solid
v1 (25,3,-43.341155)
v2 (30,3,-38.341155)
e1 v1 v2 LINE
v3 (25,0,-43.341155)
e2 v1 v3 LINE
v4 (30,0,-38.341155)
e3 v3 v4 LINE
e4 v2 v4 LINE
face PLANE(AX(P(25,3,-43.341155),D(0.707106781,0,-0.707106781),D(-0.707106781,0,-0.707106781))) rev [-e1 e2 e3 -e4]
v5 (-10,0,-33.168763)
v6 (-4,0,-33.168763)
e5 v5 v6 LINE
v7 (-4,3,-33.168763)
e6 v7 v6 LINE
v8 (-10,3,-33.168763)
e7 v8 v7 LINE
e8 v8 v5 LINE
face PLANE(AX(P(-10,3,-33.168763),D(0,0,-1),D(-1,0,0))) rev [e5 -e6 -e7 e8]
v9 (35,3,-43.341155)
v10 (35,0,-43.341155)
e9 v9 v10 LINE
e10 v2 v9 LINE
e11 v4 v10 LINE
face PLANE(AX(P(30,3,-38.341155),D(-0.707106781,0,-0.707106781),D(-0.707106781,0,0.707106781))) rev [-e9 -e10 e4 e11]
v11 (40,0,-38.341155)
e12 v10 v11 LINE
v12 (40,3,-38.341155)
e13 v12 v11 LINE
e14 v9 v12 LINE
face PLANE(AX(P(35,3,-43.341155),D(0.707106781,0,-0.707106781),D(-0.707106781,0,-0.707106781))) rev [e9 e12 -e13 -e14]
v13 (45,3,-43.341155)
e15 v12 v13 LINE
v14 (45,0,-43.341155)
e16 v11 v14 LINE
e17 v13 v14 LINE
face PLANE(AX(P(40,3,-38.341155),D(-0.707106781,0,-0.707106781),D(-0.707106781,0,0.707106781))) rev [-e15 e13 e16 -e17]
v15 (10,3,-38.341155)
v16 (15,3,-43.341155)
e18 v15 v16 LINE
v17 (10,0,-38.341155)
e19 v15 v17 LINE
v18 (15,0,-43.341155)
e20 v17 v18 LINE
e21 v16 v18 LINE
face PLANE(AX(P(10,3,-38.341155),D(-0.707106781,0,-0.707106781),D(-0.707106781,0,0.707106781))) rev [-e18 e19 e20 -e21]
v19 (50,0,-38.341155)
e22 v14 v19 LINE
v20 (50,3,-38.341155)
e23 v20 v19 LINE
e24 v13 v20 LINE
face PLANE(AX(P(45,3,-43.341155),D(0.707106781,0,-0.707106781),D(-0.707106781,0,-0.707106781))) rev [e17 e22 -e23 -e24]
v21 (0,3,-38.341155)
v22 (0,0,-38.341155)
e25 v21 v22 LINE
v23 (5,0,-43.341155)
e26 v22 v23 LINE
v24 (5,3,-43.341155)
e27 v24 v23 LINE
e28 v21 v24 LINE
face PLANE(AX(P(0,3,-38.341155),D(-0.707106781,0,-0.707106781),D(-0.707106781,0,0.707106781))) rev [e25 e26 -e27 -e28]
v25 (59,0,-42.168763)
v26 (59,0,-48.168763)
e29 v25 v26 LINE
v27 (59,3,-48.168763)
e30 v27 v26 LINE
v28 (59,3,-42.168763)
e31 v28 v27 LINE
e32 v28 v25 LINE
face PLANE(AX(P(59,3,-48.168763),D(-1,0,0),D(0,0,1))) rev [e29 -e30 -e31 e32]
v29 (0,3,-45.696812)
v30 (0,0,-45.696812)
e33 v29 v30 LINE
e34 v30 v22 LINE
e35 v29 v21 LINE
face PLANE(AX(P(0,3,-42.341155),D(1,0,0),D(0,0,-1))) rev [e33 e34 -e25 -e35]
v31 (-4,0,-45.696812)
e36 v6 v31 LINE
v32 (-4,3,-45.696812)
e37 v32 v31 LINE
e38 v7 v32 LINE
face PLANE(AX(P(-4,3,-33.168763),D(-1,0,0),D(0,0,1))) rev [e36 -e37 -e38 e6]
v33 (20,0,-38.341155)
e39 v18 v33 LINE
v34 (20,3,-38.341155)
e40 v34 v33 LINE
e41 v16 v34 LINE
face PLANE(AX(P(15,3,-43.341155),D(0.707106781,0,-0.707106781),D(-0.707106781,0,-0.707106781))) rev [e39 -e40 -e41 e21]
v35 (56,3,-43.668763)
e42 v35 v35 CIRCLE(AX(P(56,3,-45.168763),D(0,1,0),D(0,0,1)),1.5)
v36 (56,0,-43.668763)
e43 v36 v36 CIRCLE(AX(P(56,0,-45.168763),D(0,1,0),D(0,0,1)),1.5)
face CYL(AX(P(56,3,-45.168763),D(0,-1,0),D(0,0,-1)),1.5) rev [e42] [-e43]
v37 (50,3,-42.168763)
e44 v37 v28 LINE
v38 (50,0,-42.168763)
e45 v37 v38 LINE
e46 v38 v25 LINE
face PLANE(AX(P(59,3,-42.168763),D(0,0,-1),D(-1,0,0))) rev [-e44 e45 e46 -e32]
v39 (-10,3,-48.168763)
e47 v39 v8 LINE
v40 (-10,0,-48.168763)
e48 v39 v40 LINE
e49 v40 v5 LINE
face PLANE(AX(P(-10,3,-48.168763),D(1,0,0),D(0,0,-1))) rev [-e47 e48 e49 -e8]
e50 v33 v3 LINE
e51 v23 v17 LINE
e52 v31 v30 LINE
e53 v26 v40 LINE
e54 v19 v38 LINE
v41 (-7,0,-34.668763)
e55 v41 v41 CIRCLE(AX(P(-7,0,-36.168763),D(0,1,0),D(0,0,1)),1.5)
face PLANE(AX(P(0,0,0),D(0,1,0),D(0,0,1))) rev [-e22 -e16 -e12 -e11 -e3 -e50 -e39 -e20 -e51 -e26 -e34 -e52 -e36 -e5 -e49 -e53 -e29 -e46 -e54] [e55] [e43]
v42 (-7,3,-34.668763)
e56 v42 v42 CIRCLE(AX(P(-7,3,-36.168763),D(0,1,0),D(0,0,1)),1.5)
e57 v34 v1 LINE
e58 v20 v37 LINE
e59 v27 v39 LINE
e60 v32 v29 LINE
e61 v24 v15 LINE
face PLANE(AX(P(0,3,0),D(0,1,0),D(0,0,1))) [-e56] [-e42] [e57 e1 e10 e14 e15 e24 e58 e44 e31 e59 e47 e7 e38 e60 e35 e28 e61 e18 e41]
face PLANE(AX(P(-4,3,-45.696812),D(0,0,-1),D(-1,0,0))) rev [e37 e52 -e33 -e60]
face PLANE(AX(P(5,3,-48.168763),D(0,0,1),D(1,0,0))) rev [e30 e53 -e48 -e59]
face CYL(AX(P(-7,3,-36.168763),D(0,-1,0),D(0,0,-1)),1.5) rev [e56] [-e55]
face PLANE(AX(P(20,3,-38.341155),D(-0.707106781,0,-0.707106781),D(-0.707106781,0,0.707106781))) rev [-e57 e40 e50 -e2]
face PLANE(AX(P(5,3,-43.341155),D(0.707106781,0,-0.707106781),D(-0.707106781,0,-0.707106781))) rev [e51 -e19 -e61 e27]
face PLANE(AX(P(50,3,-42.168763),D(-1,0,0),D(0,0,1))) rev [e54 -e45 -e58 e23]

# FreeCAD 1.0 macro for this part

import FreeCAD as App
import Part
import Sketcher
from FreeCAD import Vector

doc = App.newDocument("Part")
body = doc.addObject("PartDesign::Body", "Body")

# Sketch on XZ plane
sketch1 = body.newObject("Sketcher::SketchObject", "Sketch")
sketch1.AttachmentSupport = (doc.getObject("XZ_Plane"), [""])
sketch1.MapMode = "FlatFace"
sketch1.addGeometry([
    Part.LineSegment(Vector(0, -38.3, 0), Vector(5, -43.3, 0)),  # 0
    Part.LineSegment(Vector(5, -43.3, 0), Vector(10, -38.3, 0)),  # 1
    Part.LineSegment(Vector(10, -38.3, 0), Vector(15, -43.3, 0)),  # 2
    Part.LineSegment(Vector(15, -43.3, 0), Vector(20, -38.3, 0)),  # 3
    Part.LineSegment(Vector(20, -38.3, 0), Vector(25, -43.3, 0)),  # 4
    Part.LineSegment(Vector(25, -43.3, 0), Vector(30, -38.3, 0)),  # 5
    Part.LineSegment(Vector(30, -38.3, 0), Vector(35, -43.3, 0)),  # 6
    Part.LineSegment(Vector(35, -43.3, 0), Vector(40, -38.3, 0)),  # 7
    Part.LineSegment(Vector(40, -38.3, 0), Vector(45, -43.3, 0)),  # 8
    Part.LineSegment(Vector(45, -43.3, 0), Vector(50, -38.3, 0)),  # 9
    Part.LineSegment(Vector(50, -38.3, 0), Vector(50, -42.2, 0)),  # 10
    Part.LineSegment(Vector(50, -42.2, 0), Vector(59, -42.2, 0)),  # 11
    Part.LineSegment(Vector(59, -42.2, 0), Vector(59, -48.2, 0)),  # 12
    Part.LineSegment(Vector(59, -48.2, 0), Vector(-10, -48.2, 0)),  # 13
    Part.LineSegment(Vector(-10, -48.2, 0), Vector(-10, -33.2, 0)),  # 14
    Part.LineSegment(Vector(-10, -33.2, 0), Vector(-4, -33.2, 0)),  # 15
    Part.LineSegment(Vector(-4, -33.2, 0), Vector(-4, -45.7, 0)),  # 16
    Part.LineSegment(Vector(-4, -45.7, 0), Vector(0, -45.7, 0)),  # 17
    Part.LineSegment(Vector(0, -45.7, 0), Vector(0, -38.3, 0)),  # 18
    Part.Circle(Vector(-7, -36.2, 0), Vector(0, 0, 1), 1.5),  # 19
    Part.Circle(Vector(56, -45.2, 0), Vector(0, 0, 1), 1.5),  # 20
], False)
sketch1.addConstraint([
    Sketcher.Constraint("Coincident", 0, 2, 1, 1),
    Sketcher.Constraint("Coincident", 1, 2, 2, 1),
    Sketcher.Constraint("Coincident", 2, 2, 3, 1),
    Sketcher.Constraint("Coincident", 3, 2, 4, 1),
    Sketcher.Constraint("Coincident", 4, 2, 5, 1),
    Sketcher.Constraint("Coincident", 5, 2, 6, 1),
    Sketcher.Constraint("Coincident", 6, 2, 7, 1),
    Sketcher.Constraint("Coincident", 7, 2, 8, 1),
    Sketcher.Constraint("Coincident", 8, 2, 9, 1),
    Sketcher.Constraint("Coincident", 9, 2, 10, 1),
    Sketcher.Constraint("Coincident", 10, 2, 11, 1),
    Sketcher.Constraint("Coincident", 11, 2, 12, 1),
    Sketcher.Constraint("Coincident", 12, 2, 13, 1),
    Sketcher.Constraint("Coincident", 13, 2, 14, 1),
    Sketcher.Constraint("Coincident", 14, 2, 15, 1),
    Sketcher.Constraint("Coincident", 15, 2, 16, 1),
    Sketcher.Constraint("Coincident", 16, 2, 17, 1),
    Sketcher.Constraint("Coincident", 17, 2, 18, 1),
    Sketcher.Constraint("Coincident", 18, 2, 0, 1),
    Sketcher.Constraint("Vertical", 10),
    Sketcher.Constraint("Horizontal", 11),
    Sketcher.Constraint("Vertical", 12),
    Sketcher.Constraint("Horizontal", 13),
    Sketcher.Constraint("Vertical", 14),
    Sketcher.Constraint("Horizontal", 15),
    Sketcher.Constraint("Vertical", 16),
    Sketcher.Constraint("Horizontal", 17),
    Sketcher.Constraint("Vertical", 18),
    Sketcher.Constraint("Equal", 19, 20),
    Sketcher.Constraint("PointOnObject", 17, 2, -2),
    Sketcher.Constraint("Perpendicular", 0, 1),
    Sketcher.Constraint("Perpendicular", 1, 2),
    Sketcher.Constraint("Perpendicular", 2, 3),
    Sketcher.Constraint("Perpendicular", 3, 4),
    Sketcher.Constraint("Perpendicular", 4, 5),
    Sketcher.Constraint("Perpendicular", 5, 6),
    Sketcher.Constraint("Perpendicular", 6, 7),
    Sketcher.Constraint("Perpendicular", 7, 8),
    Sketcher.Constraint("Perpendicular", 8, 9),
    Sketcher.Constraint("Horizontal", 0, 2, 2, 2),
    Sketcher.Constraint("Horizontal", 1, 2, 3, 2),
    Sketcher.Constraint("Horizontal", 2, 2, 4, 2),
    Sketcher.Constraint("Horizontal", 3, 2, 5, 2),
    Sketcher.Constraint("Horizontal", 4, 2, 6, 2),
    Sketcher.Constraint("Horizontal", 5, 2, 7, 2),
    Sketcher.Constraint("Horizontal", 6, 2, 8, 2),
    Sketcher.Constraint("Horizontal", 7, 2, 9, 2),
    Sketcher.Constraint("Horizontal", 9, 2, 18, 2),
    Sketcher.Constraint("Equal", 15, 12),
    Sketcher.Constraint("Equal", 0, 1),
    Sketcher.Constraint("Diameter", 19, 3.0),
    Sketcher.Constraint("DistanceX", 11, 1, 11, 2, 9.0),
    Sketcher.Constraint("DistanceX", 13, 2, 13, 1, 69.0),
    Sketcher.Constraint("DistanceX", 15, 1, 15, 2, 6.0),
    Sketcher.Constraint("DistanceX", 17, 1, 17, 2, 4.0),
    Sketcher.Constraint("DistanceY", 14, 1, 14, 2, 15.0),
    Sketcher.Constraint("DistanceX", 19, 3, -1, 1, 7.0),
    Sketcher.Constraint("DistanceX", -1, 1, 20, 3, 56.0),
    Sketcher.Constraint("DistanceY", 20, 3, 19, 3, 9.0),
    Sketcher.Constraint("DistanceY", 20, 3, 10, 2, 3.0),
    Sketcher.Constraint("DistanceY", 10, 2, 10, 1, 3.827608),
    Sketcher.Constraint("DistanceY", 16, 2, 16, 1, 12.528049),
    Sketcher.Constraint("DistanceY", 16, 2, -1, 1, 45.696812),
])
pad1 = body.newObject("PartDesign::Pad", "Pad")
pad1.Profile = sketch1
pad1.Length = 3
pad1.Reversed = True

doc.recompute()
